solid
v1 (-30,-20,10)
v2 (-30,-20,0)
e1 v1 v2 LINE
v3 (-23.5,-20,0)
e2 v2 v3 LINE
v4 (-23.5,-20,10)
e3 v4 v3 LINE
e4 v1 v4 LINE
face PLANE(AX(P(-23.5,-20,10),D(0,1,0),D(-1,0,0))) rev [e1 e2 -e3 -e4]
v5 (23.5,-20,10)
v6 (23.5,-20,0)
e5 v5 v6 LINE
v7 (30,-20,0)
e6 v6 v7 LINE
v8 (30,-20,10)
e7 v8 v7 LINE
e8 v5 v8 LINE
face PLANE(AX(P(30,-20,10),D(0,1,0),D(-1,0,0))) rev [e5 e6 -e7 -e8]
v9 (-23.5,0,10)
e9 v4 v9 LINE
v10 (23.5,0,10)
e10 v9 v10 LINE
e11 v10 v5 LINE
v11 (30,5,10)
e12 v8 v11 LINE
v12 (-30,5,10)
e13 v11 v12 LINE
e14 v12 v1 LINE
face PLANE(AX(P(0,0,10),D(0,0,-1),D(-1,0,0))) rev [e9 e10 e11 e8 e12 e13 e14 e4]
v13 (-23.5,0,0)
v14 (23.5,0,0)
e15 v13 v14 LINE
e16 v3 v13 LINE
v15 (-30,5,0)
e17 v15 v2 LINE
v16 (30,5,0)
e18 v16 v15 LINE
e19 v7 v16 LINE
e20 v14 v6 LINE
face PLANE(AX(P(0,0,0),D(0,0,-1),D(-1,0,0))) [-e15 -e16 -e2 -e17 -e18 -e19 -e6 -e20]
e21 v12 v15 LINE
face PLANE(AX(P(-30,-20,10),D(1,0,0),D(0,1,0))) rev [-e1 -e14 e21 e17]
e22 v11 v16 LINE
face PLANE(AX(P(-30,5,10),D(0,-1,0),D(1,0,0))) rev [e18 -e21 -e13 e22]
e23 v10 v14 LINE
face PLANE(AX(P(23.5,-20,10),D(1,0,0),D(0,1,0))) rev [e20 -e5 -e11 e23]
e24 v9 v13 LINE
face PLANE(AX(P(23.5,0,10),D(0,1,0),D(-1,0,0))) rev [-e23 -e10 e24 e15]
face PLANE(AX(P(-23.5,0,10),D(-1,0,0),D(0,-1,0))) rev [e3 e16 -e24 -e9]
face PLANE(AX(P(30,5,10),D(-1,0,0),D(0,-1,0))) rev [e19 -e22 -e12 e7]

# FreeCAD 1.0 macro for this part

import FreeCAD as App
import Part
import Sketcher

V = App.Vector

doc = App.newDocument("Part")
body = doc.addObject("PartDesign::Body", "Body")

sketch1 = body.newObject("Sketcher::SketchObject", "Sketch")
sketch1.AttachmentSupport = (doc.getObject("XY_Plane"), [""])
sketch1.MapMode = "FlatFace"
sketch1.addGeometry(Part.LineSegment(V(30, 5, 0), V(-30, 5, 0)), False)
sketch1.addGeometry(Part.LineSegment(V(-30, 5, 0), V(-30, -20, 0)), False)
sketch1.addGeometry(Part.LineSegment(V(-30, -20, 0), V(-24, -20, 0)), False)
sketch1.addGeometry(Part.LineSegment(V(-24, -20, 0), V(-24, 0, 0)), False)
sketch1.addGeometry(Part.LineSegment(V(-24, 0, 0), V(24, 0, 0)), False)
sketch1.addGeometry(Part.LineSegment(V(24, 0, 0), V(24, -20, 0)), False)
sketch1.addGeometry(Part.LineSegment(V(24, -20, 0), V(30, -20, 0)), False)
sketch1.addGeometry(Part.LineSegment(V(30, -20, 0), V(30, 5, 0)), False)
sketch1.addConstraint(Sketcher.Constraint("Coincident", 0, 2, 1, 1))
sketch1.addConstraint(Sketcher.Constraint("Coincident", 1, 2, 2, 1))
sketch1.addConstraint(Sketcher.Constraint("Coincident", 2, 2, 3, 1))
sketch1.addConstraint(Sketcher.Constraint("Coincident", 3, 2, 4, 1))
sketch1.addConstraint(Sketcher.Constraint("Coincident", 4, 2, 5, 1))
sketch1.addConstraint(Sketcher.Constraint("Coincident", 5, 2, 6, 1))
sketch1.addConstraint(Sketcher.Constraint("Coincident", 6, 2, 7, 1))
sketch1.addConstraint(Sketcher.Constraint("Coincident", 7, 2, 0, 1))
sketch1.addConstraint(Sketcher.Constraint("Horizontal", 0))
sketch1.addConstraint(Sketcher.Constraint("Vertical", 1))
sketch1.addConstraint(Sketcher.Constraint("Horizontal", 2))
sketch1.addConstraint(Sketcher.Constraint("Vertical", 3))
sketch1.addConstraint(Sketcher.Constraint("Horizontal", 4))
sketch1.addConstraint(Sketcher.Constraint("Vertical", 5))
sketch1.addConstraint(Sketcher.Constraint("Horizontal", 6))
sketch1.addConstraint(Sketcher.Constraint("Vertical", 7))
sketch1.addConstraint(Sketcher.Constraint("Symmetric", 3, 2, 4, 2, -1, 1))
sketch1.addConstraint(Sketcher.Constraint("Symmetric", 1, 2, 6, 2, -2))
sketch1.addConstraint(Sketcher.Constraint("DistanceX", 0, 2, 0, 1, 60.0))
sketch1.addConstraint(Sketcher.Constraint("DistanceX", 4, 1, 4, 2, 47.0))
sketch1.addConstraint(Sketcher.Constraint("DistanceY", 1, 2, 1, 1, 25.0))
sketch1.addConstraint(Sketcher.Constraint("DistanceY", 3, 1, 3, 2, 20.0))
pad1 = body.newObject("PartDesign::Pad", "Pad")
pad1.Profile = sketch1
pad1.Length = 10

doc.recompute()
